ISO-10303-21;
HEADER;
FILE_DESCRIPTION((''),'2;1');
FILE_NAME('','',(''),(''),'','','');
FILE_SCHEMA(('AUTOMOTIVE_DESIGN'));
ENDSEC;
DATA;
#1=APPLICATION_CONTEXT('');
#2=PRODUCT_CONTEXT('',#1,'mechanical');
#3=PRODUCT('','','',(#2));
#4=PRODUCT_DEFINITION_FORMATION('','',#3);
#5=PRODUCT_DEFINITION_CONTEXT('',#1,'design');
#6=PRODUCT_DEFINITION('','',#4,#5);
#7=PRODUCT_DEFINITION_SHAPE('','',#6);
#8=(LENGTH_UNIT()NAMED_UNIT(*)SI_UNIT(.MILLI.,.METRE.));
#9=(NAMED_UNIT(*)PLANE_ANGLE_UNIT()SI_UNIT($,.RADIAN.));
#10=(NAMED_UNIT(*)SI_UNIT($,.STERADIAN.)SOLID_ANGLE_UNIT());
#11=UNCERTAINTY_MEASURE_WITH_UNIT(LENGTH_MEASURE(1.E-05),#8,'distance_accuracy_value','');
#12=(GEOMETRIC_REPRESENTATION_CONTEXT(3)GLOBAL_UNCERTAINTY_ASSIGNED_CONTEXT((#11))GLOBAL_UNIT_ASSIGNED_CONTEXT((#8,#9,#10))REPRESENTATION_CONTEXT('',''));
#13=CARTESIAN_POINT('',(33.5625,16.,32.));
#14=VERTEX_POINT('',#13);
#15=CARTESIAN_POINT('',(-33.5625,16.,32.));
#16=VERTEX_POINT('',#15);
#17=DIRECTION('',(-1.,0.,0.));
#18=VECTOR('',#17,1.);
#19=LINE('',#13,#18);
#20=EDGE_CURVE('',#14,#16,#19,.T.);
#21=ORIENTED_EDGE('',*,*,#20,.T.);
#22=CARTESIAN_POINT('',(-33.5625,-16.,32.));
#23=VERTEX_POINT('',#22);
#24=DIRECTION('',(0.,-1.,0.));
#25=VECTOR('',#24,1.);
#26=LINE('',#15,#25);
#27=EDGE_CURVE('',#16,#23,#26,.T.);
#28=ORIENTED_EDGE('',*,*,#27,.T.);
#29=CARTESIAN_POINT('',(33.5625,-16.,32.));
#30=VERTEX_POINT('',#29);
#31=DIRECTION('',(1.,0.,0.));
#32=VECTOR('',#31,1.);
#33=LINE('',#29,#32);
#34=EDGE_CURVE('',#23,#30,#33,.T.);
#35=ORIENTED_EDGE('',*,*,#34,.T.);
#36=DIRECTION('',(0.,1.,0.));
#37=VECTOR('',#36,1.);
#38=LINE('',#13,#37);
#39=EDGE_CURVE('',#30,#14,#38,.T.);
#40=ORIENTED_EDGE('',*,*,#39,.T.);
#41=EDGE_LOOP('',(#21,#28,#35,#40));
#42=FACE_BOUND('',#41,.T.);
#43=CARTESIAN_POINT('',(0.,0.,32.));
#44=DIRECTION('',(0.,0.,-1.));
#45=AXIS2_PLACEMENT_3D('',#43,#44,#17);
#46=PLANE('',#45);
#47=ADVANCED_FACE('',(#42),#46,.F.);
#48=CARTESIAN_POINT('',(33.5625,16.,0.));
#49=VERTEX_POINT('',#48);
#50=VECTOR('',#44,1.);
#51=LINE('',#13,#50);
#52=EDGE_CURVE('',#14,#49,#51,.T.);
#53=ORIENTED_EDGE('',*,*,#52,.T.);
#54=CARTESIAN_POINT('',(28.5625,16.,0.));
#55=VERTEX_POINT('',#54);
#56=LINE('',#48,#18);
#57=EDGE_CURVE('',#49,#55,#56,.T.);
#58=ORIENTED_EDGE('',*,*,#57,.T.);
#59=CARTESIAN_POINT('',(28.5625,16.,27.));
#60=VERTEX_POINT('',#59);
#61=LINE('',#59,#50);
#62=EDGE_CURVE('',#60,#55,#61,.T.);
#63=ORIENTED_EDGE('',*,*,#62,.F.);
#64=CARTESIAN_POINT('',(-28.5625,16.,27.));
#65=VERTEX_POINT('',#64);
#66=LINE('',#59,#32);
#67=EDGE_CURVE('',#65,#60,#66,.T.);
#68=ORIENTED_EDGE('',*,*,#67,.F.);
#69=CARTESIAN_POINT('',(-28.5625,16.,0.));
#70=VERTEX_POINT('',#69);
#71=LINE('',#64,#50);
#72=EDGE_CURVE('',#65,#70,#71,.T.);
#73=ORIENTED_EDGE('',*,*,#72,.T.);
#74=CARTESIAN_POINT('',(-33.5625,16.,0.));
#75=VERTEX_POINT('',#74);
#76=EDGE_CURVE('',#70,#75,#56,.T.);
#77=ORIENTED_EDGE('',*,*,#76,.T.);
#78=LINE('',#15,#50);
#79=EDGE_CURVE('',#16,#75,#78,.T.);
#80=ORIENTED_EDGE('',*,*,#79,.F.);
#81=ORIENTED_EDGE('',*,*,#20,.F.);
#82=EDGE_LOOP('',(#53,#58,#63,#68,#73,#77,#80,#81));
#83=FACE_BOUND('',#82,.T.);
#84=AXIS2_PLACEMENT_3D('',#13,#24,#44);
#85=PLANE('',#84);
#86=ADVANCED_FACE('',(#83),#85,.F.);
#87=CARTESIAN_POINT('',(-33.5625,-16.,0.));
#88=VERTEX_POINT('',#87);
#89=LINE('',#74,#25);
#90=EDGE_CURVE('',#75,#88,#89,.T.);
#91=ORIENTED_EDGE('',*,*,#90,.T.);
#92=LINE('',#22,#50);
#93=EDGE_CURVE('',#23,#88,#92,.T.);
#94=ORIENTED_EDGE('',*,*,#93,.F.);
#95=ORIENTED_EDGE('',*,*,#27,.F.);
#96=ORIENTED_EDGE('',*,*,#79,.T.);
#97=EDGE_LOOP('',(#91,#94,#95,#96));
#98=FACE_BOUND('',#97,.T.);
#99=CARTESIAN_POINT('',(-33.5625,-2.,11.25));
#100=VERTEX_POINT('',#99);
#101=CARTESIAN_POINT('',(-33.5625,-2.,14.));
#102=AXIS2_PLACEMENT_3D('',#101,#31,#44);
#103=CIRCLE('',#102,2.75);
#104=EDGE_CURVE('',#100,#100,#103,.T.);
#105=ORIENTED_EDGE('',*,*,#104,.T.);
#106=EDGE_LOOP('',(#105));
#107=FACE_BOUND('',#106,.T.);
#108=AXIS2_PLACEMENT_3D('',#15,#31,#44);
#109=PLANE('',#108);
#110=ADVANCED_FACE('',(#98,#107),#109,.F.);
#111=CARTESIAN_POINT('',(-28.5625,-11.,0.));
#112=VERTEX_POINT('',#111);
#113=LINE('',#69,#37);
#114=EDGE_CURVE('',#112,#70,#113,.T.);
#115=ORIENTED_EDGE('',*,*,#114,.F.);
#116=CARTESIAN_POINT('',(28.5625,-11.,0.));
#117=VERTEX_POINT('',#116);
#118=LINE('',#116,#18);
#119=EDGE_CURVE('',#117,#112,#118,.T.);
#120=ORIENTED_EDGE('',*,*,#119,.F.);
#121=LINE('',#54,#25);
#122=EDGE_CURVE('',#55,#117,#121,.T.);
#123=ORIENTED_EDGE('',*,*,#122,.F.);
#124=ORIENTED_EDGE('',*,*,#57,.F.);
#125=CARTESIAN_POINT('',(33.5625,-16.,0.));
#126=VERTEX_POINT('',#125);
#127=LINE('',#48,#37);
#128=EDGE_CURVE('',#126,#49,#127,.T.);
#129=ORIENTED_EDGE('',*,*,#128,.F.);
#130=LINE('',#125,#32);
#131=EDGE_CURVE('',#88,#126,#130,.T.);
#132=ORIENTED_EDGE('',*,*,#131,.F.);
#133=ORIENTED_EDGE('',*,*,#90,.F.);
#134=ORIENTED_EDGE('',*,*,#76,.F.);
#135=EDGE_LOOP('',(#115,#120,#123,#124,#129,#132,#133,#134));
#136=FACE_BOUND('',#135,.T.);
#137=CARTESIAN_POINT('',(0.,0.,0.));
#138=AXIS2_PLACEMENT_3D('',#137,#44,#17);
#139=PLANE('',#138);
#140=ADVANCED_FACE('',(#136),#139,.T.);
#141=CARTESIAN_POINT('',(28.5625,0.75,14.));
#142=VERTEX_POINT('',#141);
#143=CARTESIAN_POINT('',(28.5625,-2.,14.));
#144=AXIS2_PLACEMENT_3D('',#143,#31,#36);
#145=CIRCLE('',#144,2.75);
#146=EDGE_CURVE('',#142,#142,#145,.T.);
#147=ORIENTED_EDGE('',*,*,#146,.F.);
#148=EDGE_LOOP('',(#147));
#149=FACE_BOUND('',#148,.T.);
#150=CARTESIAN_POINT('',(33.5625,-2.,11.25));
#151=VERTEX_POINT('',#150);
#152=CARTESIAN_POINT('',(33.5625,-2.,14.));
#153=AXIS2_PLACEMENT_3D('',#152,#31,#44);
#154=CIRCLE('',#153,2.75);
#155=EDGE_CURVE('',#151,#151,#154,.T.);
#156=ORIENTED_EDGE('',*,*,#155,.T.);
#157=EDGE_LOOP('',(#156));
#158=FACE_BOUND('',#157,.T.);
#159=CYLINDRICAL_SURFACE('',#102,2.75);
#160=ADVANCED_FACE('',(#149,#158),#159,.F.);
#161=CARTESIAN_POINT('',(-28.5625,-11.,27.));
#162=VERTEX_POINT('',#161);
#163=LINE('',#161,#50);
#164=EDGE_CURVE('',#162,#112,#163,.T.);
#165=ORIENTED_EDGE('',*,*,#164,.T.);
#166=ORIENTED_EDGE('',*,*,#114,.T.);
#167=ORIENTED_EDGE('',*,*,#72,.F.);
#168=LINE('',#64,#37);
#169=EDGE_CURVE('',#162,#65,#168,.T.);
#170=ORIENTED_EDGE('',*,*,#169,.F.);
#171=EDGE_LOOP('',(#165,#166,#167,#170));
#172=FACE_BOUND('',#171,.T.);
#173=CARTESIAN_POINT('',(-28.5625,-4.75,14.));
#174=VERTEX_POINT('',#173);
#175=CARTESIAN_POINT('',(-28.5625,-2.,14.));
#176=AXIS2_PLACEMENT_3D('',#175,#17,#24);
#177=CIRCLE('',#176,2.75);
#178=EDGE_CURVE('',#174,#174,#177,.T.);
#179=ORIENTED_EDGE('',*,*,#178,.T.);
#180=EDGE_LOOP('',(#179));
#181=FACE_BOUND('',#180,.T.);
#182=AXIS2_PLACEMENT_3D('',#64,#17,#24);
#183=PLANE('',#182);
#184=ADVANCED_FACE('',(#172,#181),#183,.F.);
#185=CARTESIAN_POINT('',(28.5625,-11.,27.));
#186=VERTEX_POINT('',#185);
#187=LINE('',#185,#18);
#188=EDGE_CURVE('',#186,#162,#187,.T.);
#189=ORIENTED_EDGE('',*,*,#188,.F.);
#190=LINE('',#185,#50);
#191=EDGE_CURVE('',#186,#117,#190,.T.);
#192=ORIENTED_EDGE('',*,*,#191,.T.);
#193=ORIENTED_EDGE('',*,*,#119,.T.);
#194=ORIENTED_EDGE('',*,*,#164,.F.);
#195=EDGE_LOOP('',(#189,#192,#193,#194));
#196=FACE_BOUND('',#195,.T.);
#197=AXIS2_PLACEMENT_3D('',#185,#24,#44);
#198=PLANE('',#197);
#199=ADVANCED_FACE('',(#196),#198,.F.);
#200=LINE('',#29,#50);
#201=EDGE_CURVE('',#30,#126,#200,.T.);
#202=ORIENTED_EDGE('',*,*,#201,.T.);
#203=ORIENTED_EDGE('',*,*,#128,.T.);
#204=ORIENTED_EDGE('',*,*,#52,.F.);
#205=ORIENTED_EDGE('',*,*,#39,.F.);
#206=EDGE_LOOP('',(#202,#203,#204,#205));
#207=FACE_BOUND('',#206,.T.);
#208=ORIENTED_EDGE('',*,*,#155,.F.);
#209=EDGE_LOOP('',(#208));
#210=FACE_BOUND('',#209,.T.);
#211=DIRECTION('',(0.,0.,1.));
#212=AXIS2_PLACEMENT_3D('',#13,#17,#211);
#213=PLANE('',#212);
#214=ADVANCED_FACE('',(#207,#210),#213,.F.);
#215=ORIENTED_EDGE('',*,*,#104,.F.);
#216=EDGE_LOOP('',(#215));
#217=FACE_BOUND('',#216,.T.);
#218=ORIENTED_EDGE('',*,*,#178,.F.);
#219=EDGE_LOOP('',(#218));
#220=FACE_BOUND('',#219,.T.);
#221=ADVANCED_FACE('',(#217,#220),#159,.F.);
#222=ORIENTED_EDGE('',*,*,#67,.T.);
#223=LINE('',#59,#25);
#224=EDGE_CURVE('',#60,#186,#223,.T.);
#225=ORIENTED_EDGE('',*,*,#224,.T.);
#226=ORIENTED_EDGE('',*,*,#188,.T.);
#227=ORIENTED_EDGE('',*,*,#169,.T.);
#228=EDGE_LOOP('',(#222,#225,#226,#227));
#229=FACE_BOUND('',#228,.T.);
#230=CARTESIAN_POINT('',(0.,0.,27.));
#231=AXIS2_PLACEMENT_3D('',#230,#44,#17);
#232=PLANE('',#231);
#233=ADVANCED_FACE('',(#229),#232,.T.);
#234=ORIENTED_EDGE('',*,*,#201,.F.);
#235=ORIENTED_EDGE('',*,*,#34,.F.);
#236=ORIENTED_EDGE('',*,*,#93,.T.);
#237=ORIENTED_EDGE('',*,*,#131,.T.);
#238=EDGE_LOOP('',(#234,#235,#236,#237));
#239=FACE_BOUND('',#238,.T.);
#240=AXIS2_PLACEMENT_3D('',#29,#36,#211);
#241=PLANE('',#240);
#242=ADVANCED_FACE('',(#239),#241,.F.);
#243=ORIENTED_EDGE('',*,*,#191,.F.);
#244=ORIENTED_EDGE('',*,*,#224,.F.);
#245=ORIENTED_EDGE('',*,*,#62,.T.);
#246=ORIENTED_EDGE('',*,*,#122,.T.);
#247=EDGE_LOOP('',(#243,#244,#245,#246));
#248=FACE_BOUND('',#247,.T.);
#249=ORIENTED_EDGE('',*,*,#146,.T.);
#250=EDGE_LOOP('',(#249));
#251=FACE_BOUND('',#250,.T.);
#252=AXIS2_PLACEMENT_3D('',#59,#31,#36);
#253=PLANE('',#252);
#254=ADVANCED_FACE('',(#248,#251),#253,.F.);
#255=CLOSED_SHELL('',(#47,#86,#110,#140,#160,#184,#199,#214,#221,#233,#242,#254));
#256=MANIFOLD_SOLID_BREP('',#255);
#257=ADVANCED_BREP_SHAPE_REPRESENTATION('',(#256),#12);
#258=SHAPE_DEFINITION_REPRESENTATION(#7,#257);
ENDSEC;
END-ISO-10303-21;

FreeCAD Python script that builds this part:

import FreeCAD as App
import Part
import Sketcher

V = App.Vector


def add_polygon(sketch, points):
    """Adds a closed chain of lines whose ends are joined by coincident constraints."""
    first, n = sketch.GeometryCount, len(points)
    for a, b in zip(points, points[1:] + points[:1]):
        sketch.addGeometry(Part.LineSegment(App.Vector(*a, 0), App.Vector(*b, 0)), False)
    for i in range(n):
        sketch.addConstraint(Sketcher.Constraint("Coincident", first + i, 2, first + (i + 1) % n, 1))

doc = App.newDocument("Part")
body = doc.addObject("PartDesign::Body", "Body")

sketch1 = doc.addObject("Sketcher::SketchObject", "Sketch")
body.addObject(sketch1)
sketch1.AttachmentSupport = (doc.XY_Plane, [""])
sketch1.MapMode = "FlatFace"
add_polygon(sketch1, [(-33.5625, 16), (-33.5625, -16), (33.5625, -16), (33.5625, 16)])
sketch1.addConstraint([
    Sketcher.Constraint("Vertical", 0),
    Sketcher.Constraint("Horizontal", 1),
    Sketcher.Constraint("Vertical", 2),
    Sketcher.Constraint("Horizontal", 3),
    Sketcher.Constraint("Symmetric", 0, 2, 2, 2, -1, 1),
    Sketcher.Constraint("DistanceY", 0, 2, 0, 1, 32.0),
    Sketcher.Constraint("DistanceX", 1, 1, 1, 2, 67.125),
])
pad1 = doc.addObject("PartDesign::Pad", "Pad")
body.addObject(pad1)
pad1.Profile = sketch1
pad1.Length = 32

sketch2 = doc.addObject("Sketcher::SketchObject", "Sketch001")
body.addObject(sketch2)
sketch2.AttachmentSupport = (doc.XY_Plane, [""])
sketch2.MapMode = "FlatFace"
add_polygon(sketch2, [(28.5625, 16), (28.5625, -11), (-28.5625, -11), (-28.5625, 16)])
sketch2.addConstraint([
    Sketcher.Constraint("Vertical", 0),
    Sketcher.Constraint("Horizontal", 1),
    Sketcher.Constraint("Vertical", 2),
    Sketcher.Constraint("Horizontal", 3),
    Sketcher.Constraint("DistanceY", 0, 2, 0, 1, 27.0),
    Sketcher.Constraint("DistanceY", 0, 2, -1, 1, 11.0),
    Sketcher.Constraint("DistanceX", 1, 2, 1, 1, 57.125),
    Sketcher.Constraint("DistanceX", -1, 1, 0, 2, 28.5625),
])
pocket1 = doc.addObject("PartDesign::Pocket", "Pocket")
body.addObject(pocket1)
pocket1.Profile = sketch2
pocket1.Length = 27
pocket1.Reversed = True

sketch3 = doc.addObject("Sketcher::SketchObject", "Sketch002")
body.addObject(sketch3)
sketch3.AttachmentSupport = (doc.YZ_Plane, [""])
sketch3.MapMode = "FlatFace"
sketch3.AttachmentOffset = App.Placement(V(0, 0, 33.5625), App.Rotation())
sketch3.addGeometry(Part.Circle(V(-2, 14, 0), V(0, 0, 1), 2.75), False)
sketch3.addConstraint([
    Sketcher.Constraint("Diameter", 0, 5.5),
    Sketcher.Constraint("DistanceX", 0, 3, -1, 1, 2.0),
    Sketcher.Constraint("DistanceY", -1, 1, 0, 3, 14.0),
])
pocket2 = doc.addObject("PartDesign::Pocket", "Pocket001")
body.addObject(pocket2)
pocket2.Profile = sketch3
pocket2.Type = "ThroughAll"

doc.recompute()
